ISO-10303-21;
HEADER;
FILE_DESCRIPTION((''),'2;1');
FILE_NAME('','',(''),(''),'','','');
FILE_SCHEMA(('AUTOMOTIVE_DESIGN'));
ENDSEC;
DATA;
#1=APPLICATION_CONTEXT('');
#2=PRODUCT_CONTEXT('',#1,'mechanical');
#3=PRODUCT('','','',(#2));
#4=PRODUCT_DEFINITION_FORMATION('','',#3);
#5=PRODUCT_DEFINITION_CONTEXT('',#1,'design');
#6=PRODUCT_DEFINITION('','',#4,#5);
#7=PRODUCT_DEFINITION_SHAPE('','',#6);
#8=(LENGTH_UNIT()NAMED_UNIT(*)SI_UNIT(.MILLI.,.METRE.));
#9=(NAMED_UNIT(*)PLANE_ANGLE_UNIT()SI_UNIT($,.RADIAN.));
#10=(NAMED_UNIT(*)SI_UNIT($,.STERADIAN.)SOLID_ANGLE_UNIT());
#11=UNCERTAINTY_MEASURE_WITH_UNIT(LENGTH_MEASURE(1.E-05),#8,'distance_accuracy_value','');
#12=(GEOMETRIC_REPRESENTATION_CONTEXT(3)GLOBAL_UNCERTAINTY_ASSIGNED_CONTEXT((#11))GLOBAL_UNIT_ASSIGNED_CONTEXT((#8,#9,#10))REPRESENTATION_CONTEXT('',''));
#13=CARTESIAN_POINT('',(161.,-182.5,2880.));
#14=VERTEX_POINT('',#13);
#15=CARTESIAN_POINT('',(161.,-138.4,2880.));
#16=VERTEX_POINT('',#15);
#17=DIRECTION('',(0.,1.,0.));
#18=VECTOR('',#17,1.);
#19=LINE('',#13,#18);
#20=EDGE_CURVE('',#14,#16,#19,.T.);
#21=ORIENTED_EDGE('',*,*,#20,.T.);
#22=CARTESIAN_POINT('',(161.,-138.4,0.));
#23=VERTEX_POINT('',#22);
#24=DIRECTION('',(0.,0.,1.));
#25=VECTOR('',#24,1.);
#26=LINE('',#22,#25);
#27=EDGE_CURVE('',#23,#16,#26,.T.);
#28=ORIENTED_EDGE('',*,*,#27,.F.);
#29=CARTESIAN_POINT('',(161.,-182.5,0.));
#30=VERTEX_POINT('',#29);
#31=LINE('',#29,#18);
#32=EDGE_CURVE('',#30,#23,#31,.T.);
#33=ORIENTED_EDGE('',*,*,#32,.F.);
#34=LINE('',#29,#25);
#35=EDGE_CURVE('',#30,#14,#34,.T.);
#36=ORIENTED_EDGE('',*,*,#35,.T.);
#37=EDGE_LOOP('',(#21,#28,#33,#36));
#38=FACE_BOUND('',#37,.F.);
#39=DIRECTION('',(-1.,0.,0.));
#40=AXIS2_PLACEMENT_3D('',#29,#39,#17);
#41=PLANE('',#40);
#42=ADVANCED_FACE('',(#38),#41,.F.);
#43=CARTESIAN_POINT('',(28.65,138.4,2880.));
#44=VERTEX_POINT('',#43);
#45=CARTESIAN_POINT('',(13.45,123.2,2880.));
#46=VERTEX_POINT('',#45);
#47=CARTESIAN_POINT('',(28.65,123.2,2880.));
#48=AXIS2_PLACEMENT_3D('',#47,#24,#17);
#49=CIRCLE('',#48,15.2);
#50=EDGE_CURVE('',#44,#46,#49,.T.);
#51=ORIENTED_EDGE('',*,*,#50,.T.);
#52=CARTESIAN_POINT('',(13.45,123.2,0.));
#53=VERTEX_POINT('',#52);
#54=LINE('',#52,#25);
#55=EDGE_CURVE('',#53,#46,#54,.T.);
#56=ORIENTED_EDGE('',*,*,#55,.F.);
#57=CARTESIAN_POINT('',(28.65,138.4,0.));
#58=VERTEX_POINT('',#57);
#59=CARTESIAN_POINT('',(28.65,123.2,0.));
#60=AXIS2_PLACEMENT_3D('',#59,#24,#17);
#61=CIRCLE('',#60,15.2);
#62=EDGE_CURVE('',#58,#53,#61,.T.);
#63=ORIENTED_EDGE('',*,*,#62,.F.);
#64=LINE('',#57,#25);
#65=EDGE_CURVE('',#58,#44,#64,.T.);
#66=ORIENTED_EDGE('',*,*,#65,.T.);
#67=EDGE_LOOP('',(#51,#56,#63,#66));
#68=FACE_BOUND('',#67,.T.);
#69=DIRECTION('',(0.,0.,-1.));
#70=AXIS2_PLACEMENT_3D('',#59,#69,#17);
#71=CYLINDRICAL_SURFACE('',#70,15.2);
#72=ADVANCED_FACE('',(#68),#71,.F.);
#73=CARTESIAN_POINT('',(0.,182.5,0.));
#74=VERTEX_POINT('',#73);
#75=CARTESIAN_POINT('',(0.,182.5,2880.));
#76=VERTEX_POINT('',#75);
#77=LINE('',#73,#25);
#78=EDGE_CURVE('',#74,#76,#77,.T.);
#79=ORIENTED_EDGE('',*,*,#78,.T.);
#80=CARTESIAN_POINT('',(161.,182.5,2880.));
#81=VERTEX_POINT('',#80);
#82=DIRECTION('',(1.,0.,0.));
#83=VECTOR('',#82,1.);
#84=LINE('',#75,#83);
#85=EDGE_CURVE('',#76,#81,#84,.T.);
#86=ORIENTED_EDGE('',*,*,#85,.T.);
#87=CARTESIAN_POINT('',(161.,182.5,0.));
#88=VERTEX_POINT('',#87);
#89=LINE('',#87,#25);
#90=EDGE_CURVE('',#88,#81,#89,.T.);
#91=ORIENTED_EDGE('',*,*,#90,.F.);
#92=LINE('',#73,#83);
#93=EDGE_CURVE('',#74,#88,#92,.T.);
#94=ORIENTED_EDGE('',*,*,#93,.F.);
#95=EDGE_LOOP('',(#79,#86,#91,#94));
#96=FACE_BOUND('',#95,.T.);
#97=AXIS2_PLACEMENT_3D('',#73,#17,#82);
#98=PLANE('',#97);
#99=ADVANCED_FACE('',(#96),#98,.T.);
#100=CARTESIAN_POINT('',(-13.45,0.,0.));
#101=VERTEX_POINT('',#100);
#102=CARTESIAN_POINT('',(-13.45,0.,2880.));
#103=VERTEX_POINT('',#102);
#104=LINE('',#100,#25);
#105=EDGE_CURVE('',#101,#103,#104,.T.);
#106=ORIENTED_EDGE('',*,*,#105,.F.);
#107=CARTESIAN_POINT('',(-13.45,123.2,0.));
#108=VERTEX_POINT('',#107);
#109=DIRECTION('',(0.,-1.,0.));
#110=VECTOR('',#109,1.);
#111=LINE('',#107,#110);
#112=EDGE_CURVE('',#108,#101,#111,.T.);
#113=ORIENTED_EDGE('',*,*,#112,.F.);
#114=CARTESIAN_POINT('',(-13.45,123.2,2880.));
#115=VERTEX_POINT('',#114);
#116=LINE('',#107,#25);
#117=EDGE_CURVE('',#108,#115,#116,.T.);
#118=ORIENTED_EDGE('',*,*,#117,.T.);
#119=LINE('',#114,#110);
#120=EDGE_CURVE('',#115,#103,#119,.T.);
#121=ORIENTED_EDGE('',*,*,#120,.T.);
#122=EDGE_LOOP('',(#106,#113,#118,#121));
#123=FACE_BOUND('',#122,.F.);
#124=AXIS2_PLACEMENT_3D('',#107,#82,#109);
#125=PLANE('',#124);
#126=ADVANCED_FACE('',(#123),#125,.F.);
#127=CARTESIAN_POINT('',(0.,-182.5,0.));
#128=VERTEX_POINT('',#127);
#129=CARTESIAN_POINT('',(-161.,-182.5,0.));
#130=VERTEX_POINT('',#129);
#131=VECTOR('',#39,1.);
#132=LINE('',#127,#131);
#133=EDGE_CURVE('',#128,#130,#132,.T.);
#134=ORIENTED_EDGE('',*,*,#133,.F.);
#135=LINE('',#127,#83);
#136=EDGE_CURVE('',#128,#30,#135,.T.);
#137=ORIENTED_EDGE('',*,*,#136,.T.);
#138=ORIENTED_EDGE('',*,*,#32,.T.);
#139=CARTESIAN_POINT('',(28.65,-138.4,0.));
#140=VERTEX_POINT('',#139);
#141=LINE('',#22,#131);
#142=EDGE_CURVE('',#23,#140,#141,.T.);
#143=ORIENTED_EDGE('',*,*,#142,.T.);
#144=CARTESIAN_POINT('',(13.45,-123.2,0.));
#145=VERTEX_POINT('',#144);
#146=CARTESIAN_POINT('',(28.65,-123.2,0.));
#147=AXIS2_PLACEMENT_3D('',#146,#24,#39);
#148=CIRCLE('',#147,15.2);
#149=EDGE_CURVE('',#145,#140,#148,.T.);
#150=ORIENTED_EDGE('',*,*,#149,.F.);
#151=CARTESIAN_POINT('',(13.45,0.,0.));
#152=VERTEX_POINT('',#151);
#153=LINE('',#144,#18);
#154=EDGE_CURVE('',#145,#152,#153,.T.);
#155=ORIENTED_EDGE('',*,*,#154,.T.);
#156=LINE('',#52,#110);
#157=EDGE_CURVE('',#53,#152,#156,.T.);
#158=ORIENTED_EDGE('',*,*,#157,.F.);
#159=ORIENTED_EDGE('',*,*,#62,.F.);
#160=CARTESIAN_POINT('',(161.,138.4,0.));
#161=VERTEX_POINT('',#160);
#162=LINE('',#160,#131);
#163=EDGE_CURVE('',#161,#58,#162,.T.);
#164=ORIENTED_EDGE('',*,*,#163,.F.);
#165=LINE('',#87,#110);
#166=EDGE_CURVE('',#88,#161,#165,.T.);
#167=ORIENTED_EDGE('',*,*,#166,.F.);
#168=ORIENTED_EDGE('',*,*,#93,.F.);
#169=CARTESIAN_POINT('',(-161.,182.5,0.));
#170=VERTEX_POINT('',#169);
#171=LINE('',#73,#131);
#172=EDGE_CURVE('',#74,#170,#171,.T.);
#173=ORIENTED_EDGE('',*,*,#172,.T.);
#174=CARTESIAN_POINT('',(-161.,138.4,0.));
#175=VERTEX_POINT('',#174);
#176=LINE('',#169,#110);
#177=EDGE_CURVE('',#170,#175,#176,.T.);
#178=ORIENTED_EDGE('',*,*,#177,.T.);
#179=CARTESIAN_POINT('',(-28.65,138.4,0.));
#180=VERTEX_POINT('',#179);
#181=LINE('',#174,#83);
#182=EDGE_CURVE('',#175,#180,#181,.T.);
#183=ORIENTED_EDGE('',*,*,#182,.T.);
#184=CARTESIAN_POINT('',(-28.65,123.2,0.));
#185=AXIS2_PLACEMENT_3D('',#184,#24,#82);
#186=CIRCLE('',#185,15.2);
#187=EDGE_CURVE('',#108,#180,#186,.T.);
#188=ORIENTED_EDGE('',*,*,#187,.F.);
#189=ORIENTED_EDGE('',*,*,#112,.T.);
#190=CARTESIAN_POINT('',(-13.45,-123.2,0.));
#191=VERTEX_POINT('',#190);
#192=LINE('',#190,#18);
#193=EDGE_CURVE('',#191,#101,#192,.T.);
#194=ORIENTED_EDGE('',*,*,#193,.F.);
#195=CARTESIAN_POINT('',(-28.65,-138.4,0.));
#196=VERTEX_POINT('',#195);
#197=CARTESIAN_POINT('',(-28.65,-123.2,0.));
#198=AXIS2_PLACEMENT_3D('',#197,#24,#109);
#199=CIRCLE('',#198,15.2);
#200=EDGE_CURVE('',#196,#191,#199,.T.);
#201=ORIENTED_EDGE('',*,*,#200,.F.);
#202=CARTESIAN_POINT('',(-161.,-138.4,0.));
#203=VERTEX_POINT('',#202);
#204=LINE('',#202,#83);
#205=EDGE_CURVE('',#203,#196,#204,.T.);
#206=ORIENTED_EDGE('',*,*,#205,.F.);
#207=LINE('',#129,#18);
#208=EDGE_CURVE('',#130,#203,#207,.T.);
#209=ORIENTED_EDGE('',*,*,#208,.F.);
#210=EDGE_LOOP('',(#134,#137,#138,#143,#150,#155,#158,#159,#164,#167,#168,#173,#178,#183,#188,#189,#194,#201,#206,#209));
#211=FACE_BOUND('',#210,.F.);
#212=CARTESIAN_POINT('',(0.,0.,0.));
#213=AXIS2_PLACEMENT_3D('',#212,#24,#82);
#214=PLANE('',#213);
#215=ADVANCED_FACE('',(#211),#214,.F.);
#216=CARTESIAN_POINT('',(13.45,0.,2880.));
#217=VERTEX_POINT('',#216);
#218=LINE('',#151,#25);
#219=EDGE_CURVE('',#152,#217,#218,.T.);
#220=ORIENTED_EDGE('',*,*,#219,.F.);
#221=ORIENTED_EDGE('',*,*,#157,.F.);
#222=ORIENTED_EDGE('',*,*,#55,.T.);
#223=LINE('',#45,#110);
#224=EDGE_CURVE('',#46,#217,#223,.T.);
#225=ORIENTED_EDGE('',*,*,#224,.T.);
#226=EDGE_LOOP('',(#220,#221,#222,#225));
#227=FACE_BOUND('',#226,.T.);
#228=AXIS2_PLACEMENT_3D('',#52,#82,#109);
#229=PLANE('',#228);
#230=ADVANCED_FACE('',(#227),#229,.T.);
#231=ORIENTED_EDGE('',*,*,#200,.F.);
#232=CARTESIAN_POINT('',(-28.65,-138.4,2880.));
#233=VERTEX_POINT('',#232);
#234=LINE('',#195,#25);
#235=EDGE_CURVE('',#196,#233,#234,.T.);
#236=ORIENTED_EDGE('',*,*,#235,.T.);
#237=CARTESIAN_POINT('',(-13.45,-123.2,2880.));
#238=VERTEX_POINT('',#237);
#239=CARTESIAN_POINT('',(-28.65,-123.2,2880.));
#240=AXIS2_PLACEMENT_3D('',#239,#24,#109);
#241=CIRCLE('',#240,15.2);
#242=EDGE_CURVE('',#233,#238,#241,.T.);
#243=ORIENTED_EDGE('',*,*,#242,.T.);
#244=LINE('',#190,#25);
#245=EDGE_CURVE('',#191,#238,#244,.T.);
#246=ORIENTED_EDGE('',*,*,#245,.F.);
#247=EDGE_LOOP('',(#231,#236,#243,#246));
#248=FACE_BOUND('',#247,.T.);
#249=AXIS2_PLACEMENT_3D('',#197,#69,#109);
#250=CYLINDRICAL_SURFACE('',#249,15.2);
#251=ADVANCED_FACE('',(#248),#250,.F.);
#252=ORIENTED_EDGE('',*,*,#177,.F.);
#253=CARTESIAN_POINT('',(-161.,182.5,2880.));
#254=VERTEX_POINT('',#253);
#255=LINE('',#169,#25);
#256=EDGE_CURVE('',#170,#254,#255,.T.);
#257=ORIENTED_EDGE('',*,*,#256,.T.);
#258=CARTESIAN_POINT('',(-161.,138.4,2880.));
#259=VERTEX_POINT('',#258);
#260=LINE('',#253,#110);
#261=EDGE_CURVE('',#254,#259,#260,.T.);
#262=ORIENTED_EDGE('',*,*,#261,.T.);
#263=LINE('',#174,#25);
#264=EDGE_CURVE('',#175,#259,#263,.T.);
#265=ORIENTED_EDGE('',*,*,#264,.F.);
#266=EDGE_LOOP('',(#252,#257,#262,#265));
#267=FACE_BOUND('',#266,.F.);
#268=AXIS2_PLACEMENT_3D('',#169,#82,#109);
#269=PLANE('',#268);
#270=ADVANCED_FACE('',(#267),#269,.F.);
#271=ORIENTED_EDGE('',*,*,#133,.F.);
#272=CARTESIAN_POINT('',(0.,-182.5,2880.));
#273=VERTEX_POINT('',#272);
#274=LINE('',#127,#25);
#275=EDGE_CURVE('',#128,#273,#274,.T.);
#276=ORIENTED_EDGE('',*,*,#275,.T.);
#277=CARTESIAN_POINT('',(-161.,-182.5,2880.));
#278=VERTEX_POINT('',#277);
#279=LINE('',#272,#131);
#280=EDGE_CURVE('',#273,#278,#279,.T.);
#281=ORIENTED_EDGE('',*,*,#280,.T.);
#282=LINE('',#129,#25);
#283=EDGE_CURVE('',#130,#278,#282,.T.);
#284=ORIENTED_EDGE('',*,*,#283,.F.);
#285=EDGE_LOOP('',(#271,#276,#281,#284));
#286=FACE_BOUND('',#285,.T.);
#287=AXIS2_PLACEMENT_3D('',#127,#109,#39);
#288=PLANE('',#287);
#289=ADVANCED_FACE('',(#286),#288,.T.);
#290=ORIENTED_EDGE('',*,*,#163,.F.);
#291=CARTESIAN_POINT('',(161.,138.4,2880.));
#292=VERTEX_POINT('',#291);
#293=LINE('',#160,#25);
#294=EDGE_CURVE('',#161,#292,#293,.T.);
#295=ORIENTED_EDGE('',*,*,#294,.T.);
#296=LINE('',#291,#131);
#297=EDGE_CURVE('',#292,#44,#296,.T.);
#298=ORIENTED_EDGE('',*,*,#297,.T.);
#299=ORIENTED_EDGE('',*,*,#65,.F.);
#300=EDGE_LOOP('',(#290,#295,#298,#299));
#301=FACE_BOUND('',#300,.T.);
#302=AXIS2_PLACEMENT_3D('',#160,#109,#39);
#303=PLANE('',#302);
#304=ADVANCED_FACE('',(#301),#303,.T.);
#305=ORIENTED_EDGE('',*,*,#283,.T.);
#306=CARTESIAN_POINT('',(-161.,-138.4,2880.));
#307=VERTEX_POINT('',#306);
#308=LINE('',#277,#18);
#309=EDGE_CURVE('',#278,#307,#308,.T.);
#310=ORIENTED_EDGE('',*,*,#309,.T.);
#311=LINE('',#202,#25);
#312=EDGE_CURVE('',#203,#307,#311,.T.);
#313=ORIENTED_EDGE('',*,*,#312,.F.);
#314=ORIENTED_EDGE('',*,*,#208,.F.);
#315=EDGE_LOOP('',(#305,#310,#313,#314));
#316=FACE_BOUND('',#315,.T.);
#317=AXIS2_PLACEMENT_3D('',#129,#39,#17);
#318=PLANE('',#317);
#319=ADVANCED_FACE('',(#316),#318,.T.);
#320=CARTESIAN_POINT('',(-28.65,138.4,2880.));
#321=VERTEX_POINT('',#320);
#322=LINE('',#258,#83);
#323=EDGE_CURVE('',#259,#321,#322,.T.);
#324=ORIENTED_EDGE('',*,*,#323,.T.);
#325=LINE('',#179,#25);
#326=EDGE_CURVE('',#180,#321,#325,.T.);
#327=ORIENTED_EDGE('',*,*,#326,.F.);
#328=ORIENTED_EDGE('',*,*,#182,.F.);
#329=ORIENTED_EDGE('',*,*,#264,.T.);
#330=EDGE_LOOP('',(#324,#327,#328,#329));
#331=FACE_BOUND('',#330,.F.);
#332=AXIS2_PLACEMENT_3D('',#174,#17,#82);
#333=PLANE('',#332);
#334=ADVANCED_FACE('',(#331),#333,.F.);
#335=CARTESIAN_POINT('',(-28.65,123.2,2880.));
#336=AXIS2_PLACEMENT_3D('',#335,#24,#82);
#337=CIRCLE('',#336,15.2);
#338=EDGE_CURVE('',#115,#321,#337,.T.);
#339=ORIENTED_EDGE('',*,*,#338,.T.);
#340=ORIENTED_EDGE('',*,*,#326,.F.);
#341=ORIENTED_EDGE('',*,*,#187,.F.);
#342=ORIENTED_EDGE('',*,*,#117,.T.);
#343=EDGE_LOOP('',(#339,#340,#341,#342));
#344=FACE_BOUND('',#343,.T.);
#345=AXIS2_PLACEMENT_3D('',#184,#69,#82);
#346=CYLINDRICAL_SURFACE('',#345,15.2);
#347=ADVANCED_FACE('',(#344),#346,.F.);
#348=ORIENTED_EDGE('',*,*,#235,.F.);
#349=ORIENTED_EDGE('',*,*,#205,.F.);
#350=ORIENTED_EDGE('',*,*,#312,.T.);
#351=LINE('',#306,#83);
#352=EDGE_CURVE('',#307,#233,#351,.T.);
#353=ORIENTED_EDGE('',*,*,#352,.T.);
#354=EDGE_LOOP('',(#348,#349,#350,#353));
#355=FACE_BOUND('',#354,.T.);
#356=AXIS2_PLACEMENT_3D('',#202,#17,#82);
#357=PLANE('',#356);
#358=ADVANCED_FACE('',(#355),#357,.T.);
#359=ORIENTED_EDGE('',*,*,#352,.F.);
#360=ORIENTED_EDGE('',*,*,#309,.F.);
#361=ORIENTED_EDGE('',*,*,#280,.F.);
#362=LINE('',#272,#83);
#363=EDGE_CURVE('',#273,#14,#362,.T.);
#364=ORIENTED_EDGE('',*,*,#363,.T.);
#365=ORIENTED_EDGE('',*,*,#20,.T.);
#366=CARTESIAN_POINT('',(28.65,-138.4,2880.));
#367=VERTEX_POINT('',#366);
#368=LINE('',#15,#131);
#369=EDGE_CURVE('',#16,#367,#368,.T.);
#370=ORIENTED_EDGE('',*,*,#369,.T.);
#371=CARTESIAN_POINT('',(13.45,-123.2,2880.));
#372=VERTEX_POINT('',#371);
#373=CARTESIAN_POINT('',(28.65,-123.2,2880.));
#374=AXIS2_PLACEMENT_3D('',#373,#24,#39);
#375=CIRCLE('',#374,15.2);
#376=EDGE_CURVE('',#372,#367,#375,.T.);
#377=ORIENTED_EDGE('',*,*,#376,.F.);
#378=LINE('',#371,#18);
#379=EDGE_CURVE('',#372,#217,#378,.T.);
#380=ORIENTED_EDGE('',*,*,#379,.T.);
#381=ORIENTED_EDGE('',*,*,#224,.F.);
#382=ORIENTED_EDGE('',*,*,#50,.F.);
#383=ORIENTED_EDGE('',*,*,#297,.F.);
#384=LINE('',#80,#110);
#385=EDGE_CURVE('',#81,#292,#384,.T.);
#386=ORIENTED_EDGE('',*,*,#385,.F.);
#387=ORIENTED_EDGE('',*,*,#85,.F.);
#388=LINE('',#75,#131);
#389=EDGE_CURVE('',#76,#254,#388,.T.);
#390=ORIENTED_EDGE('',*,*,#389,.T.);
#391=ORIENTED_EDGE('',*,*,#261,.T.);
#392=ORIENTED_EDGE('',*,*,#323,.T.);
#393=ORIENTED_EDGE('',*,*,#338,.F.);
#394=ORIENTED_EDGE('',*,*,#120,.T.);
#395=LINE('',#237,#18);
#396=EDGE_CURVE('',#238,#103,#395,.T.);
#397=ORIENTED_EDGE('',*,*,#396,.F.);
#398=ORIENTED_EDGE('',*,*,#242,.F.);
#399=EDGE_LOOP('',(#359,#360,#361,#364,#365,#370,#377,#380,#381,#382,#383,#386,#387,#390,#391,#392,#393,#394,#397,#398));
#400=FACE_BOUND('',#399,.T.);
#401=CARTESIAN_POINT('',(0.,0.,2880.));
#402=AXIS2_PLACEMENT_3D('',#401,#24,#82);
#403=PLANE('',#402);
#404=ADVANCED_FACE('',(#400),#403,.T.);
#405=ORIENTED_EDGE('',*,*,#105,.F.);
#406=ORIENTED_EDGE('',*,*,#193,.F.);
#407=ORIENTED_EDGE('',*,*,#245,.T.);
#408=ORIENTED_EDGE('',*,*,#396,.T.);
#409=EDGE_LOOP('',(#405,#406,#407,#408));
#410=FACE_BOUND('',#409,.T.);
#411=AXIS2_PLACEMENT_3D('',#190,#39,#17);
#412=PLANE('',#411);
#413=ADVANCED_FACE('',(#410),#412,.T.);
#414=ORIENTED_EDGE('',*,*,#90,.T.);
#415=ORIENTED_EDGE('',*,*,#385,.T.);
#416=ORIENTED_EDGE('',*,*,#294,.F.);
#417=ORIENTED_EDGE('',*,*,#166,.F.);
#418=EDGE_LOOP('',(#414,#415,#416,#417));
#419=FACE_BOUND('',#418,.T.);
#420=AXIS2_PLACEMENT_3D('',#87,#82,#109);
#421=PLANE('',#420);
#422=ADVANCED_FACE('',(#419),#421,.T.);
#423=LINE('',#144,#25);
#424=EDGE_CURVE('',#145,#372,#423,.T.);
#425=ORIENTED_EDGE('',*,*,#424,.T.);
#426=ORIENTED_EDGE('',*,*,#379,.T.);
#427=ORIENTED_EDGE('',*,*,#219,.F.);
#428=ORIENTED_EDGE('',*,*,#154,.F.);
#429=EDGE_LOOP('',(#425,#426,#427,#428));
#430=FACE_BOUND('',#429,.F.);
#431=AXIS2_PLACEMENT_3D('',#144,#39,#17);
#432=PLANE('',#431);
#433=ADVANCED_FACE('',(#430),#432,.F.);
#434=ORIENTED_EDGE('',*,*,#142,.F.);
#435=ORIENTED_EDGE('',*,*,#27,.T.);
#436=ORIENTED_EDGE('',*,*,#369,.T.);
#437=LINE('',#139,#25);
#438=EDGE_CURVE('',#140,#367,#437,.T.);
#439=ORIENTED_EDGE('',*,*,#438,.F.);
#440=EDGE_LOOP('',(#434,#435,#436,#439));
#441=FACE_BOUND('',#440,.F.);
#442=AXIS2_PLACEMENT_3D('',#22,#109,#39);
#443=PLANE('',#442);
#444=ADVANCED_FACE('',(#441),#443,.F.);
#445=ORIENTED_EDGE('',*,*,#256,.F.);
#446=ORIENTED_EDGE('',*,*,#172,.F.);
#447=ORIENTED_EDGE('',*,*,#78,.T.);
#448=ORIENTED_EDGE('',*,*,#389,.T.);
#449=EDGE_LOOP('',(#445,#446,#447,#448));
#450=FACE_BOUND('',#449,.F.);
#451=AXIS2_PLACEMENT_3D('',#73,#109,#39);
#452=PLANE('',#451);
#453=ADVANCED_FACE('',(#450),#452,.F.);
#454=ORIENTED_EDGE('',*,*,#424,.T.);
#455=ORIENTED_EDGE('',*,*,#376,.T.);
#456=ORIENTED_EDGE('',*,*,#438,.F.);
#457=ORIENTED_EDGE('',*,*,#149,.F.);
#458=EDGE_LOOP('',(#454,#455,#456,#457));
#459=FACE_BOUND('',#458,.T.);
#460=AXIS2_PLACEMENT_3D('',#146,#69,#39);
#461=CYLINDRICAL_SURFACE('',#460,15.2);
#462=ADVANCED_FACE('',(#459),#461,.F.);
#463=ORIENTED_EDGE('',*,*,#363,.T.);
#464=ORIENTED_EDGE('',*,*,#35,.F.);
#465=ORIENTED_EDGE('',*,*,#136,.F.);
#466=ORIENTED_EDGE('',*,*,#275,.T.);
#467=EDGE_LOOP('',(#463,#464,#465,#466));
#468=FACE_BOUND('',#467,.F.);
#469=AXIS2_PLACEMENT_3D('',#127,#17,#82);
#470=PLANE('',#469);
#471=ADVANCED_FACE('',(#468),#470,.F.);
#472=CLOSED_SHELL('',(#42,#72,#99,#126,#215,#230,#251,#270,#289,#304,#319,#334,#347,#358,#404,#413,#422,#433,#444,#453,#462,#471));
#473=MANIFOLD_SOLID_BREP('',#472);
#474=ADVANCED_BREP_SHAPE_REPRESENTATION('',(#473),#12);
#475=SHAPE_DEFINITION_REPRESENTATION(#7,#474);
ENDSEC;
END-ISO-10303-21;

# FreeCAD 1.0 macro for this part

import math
import FreeCAD as App
import Part
import Sketcher
from FreeCAD import Vector
Q = App.Units.Quantity

doc = App.newDocument("Part")
body = doc.addObject("PartDesign::Body", "Body")

# Sketch on XY plane
sketch1 = body.newObject("Sketcher::SketchObject", "Sketch")
sketch1.AttachmentSupport = (doc.getObject("XY_Plane"), [""])
sketch1.MapMode = "FlatFace"
sketch1.addGeometry([
    Part.LineSegment(Vector(-161, -138.4, 0), Vector(-161, -182.5, 0)),  # 0
    Part.LineSegment(Vector(-161, -182.5, 0), Vector(161, -182.5, 0)),  # 1
    Part.LineSegment(Vector(161, -182.5, 0), Vector(161, -138.4, 0)),  # 2
    Part.LineSegment(Vector(161, -138.4, 0), Vector(28.65, -138.4, 0)),  # 3
    Part.ArcOfCircle(Part.Circle(Vector(28.65, -123.2, 0), Vector(0, 0, 1), 15.2), math.radians(180), math.radians(270)),  # 4
    Part.LineSegment(Vector(13.45, -123.2, 0), Vector(13.45, 123.2, 0)),  # 5
    Part.ArcOfCircle(Part.Circle(Vector(28.65, 123.2, 0), Vector(0, 0, 1), 15.2), math.radians(90), math.radians(180)),  # 6
    Part.LineSegment(Vector(28.65, 138.4, 0), Vector(161, 138.4, 0)),  # 7
    Part.LineSegment(Vector(161, 138.4, 0), Vector(161, 182.5, 0)),  # 8
    Part.LineSegment(Vector(161, 182.5, 0), Vector(-161, 182.5, 0)),  # 9
    Part.LineSegment(Vector(-161, 182.5, 0), Vector(-161, 138.4, 0)),  # 10
    Part.LineSegment(Vector(-161, 138.4, 0), Vector(-28.65, 138.4, 0)),  # 11
    Part.ArcOfCircle(Part.Circle(Vector(-28.65, 123.2, 0), Vector(0, 0, 1), 15.2), math.radians(0), math.radians(90)),  # 12
    Part.LineSegment(Vector(-13.45, 123.2, 0), Vector(-13.45, -123.2, 0)),  # 13
    Part.ArcOfCircle(Part.Circle(Vector(-28.65, -123.2, 0), Vector(0, 0, 1), 15.2), math.radians(-90), math.radians(0)),  # 14
    Part.LineSegment(Vector(-28.65, -138.4, 0), Vector(-161, -138.4, 0)),  # 15
], False)
sketch1.addConstraint([
    Sketcher.Constraint("Coincident", 0, 2, 1, 1),
    Sketcher.Constraint("Coincident", 1, 2, 2, 1),
    Sketcher.Constraint("Coincident", 2, 2, 3, 1),
    Sketcher.Constraint("Tangent", 3, 2, 4, 2),
    Sketcher.Constraint("Tangent", 4, 1, 5, 1),
    Sketcher.Constraint("Tangent", 5, 2, 6, 2),
    Sketcher.Constraint("Tangent", 6, 1, 7, 1),
    Sketcher.Constraint("Coincident", 7, 2, 8, 1),
    Sketcher.Constraint("Coincident", 8, 2, 9, 1),
    Sketcher.Constraint("Coincident", 9, 2, 10, 1),
    Sketcher.Constraint("Coincident", 10, 2, 11, 1),
    Sketcher.Constraint("Tangent", 11, 2, 12, 2),
    Sketcher.Constraint("Tangent", 12, 1, 13, 1),
    Sketcher.Constraint("Tangent", 13, 2, 14, 2),
    Sketcher.Constraint("Tangent", 14, 1, 15, 1),
    Sketcher.Constraint("Coincident", 15, 2, 0, 1),
    Sketcher.Constraint("Vertical", 0),
    Sketcher.Constraint("Horizontal", 1),
    Sketcher.Constraint("Vertical", 2),
    Sketcher.Constraint("Horizontal", 3),
    Sketcher.Constraint("Vertical", 5),
    Sketcher.Constraint("Horizontal", 7),
    Sketcher.Constraint("Vertical", 8),
    Sketcher.Constraint("Horizontal", 9),
    Sketcher.Constraint("Vertical", 10),
    Sketcher.Constraint("Horizontal", 11),
    Sketcher.Constraint("Vertical", 13),
    Sketcher.Constraint("Horizontal", 15),
    Sketcher.Constraint("Equal", 4, 6),
    Sketcher.Constraint("Equal", 6, 12),
    Sketcher.Constraint("Equal", 12, 14),
    Sketcher.Constraint("Symmetric", 4, 3, 12, 3, -1, 1),
    Sketcher.Constraint("Symmetric", 0, 2, 8, 2, -1, 1),
    Sketcher.Constraint("Symmetric", 7, 2, 10, 2, -2),
    Sketcher.Constraint("Symmetric", 2, 2, 15, 2, -2),
    Sketcher.Constraint("Radius", 4, Q("15.2 mm")),
    Sketcher.Constraint("DistanceY", 0, 2, 0, 1, Q("44.1 mm")),
    Sketcher.Constraint("DistanceX", 0, 2, -1, 1, Q("161 mm")),
    Sketcher.Constraint("DistanceY", 0, 2, -1, 1, Q("182.5 mm")),
    Sketcher.Constraint("DistanceX", -1, 1, 4, 1, Q("13.45 mm")),
])
pad1 = body.newObject("PartDesign::Pad", "Pad")
pad1.Profile = sketch1
pad1.Length = 2880

doc.recompute()
